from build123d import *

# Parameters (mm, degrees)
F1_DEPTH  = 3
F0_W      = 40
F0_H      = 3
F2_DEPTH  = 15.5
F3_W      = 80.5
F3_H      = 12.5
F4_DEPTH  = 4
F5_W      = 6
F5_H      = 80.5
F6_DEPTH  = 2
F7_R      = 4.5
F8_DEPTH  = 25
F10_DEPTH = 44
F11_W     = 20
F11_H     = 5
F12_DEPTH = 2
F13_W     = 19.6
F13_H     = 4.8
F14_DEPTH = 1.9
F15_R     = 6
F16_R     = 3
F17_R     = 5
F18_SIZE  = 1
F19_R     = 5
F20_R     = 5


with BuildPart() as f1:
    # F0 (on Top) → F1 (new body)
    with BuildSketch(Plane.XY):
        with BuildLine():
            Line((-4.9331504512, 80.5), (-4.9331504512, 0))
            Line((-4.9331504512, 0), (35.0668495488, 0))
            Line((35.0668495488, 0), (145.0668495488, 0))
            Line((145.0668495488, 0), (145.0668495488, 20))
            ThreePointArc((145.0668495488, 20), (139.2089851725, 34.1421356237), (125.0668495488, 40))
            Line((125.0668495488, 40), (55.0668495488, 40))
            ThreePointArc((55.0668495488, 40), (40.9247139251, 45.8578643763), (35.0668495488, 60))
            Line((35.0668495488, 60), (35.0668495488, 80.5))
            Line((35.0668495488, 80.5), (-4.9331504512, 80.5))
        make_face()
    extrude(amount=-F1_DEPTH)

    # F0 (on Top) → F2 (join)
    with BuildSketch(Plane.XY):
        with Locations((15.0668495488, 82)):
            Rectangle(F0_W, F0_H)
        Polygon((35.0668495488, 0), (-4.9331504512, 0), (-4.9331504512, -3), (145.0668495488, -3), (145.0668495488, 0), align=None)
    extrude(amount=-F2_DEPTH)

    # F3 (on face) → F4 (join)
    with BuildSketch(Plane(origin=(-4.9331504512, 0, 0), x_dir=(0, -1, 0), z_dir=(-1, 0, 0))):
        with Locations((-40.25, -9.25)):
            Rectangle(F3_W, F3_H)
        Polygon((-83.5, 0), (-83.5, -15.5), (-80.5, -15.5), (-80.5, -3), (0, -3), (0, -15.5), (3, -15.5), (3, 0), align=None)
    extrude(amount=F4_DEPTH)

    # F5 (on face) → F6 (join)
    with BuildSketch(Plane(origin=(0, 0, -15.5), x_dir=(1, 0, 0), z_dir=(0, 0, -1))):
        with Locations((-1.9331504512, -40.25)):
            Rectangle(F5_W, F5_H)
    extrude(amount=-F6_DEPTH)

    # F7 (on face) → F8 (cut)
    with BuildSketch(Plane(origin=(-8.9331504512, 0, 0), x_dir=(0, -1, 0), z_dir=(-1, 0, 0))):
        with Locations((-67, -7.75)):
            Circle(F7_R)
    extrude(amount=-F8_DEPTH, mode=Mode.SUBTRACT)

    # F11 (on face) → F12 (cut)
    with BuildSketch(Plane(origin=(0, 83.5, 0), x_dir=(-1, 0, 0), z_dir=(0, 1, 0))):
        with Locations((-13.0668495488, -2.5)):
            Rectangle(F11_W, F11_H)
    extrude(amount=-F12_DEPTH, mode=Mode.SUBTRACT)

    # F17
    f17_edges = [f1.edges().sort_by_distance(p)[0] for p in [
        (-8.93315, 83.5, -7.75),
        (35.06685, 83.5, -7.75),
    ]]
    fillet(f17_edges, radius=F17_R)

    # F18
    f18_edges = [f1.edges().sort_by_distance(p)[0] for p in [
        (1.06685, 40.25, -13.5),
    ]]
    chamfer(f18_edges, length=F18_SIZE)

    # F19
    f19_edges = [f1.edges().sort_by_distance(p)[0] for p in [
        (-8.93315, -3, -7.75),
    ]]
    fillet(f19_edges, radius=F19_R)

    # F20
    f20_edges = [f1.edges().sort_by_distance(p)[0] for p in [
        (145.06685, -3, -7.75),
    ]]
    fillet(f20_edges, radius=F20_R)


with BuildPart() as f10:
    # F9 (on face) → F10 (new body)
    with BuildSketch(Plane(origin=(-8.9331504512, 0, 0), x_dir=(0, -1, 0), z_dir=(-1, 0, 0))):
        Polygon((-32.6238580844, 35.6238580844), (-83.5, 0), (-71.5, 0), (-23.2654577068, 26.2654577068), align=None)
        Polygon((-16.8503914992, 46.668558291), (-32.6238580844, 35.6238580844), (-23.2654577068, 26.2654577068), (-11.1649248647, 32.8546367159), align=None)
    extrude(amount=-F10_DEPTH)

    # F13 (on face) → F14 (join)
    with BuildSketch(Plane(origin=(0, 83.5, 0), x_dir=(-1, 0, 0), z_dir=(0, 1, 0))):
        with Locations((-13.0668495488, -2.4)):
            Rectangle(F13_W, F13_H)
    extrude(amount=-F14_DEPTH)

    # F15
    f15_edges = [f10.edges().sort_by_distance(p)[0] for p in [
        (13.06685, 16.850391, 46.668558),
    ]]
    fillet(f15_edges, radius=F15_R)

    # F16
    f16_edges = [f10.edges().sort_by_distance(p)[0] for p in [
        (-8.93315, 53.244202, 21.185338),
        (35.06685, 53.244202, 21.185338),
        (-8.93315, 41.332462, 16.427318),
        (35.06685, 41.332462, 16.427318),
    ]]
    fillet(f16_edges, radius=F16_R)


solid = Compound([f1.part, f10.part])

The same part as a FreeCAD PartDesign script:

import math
import FreeCAD as App
import Part
import Sketcher
Q = App.Units.Quantity


def edges_at(feature, points):
    """Names of the edges that pass closest to the given points."""
    edges = feature.Shape.Edges
    near = lambda p: min(range(len(edges)), key=lambda i: edges[i].distToShape(Part.Vertex(*p))[0])
    return sorted({f"Edge{near(p) + 1}" for p in points})

doc = App.newDocument("Part")
body = doc.addObject("PartDesign::Body", "Body")

# Sketch on XY plane
sketch1 = body.newObject("Sketcher::SketchObject", "Sketch")
sketch1.AttachmentSupport = (doc.getObject("XY_Plane"), [""])
sketch1.MapMode = "FlatFace"
sketch1.addGeometry([
    Part.LineSegment(App.Vector(-5, 80, 0), App.Vector(-5, 0, 0)),  # 0
    Part.LineSegment(App.Vector(-5, 0, 0), App.Vector(145, 0, 0)),  # 1
    Part.LineSegment(App.Vector(145, 0, 0), App.Vector(145, 20, 0)),  # 2
    Part.ArcOfCircle(Part.Circle(App.Vector(125, 20, 0), App.Vector(0, 0, 1), 20), math.radians(0), math.radians(90)),  # 3
    Part.LineSegment(App.Vector(125, 40, 0), App.Vector(55, 40, 0)),  # 4
    Part.ArcOfCircle(Part.Circle(App.Vector(55, 60, 0), App.Vector(0, 0, 1), 20), math.radians(180), math.radians(270)),  # 5
    Part.LineSegment(App.Vector(35, 60, 0), App.Vector(35, 80, 0)),  # 6
    Part.LineSegment(App.Vector(35, 80, 0), App.Vector(-5, 80, 0)),  # 7
], False)
sketch1.addConstraint([
    Sketcher.Constraint("Coincident", 0, 2, 1, 1),
    Sketcher.Constraint("Coincident", 1, 2, 2, 1),
    Sketcher.Constraint("Tangent", 2, 2, 3, 1),
    Sketcher.Constraint("Tangent", 3, 2, 4, 1),
    Sketcher.Constraint("Tangent", 4, 2, 5, 2),
    Sketcher.Constraint("Tangent", 5, 1, 6, 1),
    Sketcher.Constraint("Coincident", 6, 2, 7, 1),
    Sketcher.Constraint("Coincident", 7, 2, 0, 1),
    Sketcher.Constraint("Vertical", 0),
    Sketcher.Constraint("Horizontal", 1),
    Sketcher.Constraint("Vertical", 2),
    Sketcher.Constraint("Horizontal", 4),
    Sketcher.Constraint("Vertical", 6),
    Sketcher.Constraint("Horizontal", 7),
    Sketcher.Constraint("Equal", 3, 5),
    Sketcher.Constraint("PointOnObject", 0, 2, -1),
    Sketcher.Constraint("Radius", 3, Q("20 mm")),
    Sketcher.Constraint("DistanceX", 1, 1, 1, 2, Q("150 mm")),
    Sketcher.Constraint("DistanceX", 4, 2, 4, 1, Q("70 mm")),
    Sketcher.Constraint("DistanceY", 2, 1, 2, 2, Q("20 mm")),
    Sketcher.Constraint("DistanceY", 0, 2, 0, 1, Q("80.5 mm")),
    Sketcher.Constraint("DistanceX", -1, 1, 3, 3, Q("125.06685 mm")),
])
pad1 = body.newObject("PartDesign::Pad", "Pad")
pad1.Profile = sketch1
pad1.Length = 3
pad1.Reversed = True

# Sketch on XY plane
sketch2 = body.newObject("Sketcher::SketchObject", "Sketch001")
sketch2.AttachmentSupport = (doc.getObject("XY_Plane"), [""])
sketch2.MapMode = "FlatFace"
sketch2.addGeometry([
    Part.LineSegment(App.Vector(-4.9, 83.5, 0), App.Vector(-4.9, 80.5, 0)),  # 0
    Part.LineSegment(App.Vector(-4.9, 80.5, 0), App.Vector(35.1, 80.5, 0)),  # 1
    Part.LineSegment(App.Vector(35.1, 80.5, 0), App.Vector(35.1, 83.5, 0)),  # 2
    Part.LineSegment(App.Vector(35.1, 83.5, 0), App.Vector(-4.9, 83.5, 0)),  # 3
    Part.LineSegment(App.Vector(-4.9, 0, 0), App.Vector(-4.9, -3, 0)),  # 4
    Part.LineSegment(App.Vector(-4.9, -3, 0), App.Vector(145.1, -3, 0)),  # 5
    Part.LineSegment(App.Vector(145.1, -3, 0), App.Vector(145.1, 0, 0)),  # 6
    Part.LineSegment(App.Vector(145.1, 0, 0), App.Vector(-4.9, 0, 0)),  # 7
], False)
sketch2.addConstraint([
    Sketcher.Constraint("Coincident", 0, 2, 1, 1),
    Sketcher.Constraint("Coincident", 1, 2, 2, 1),
    Sketcher.Constraint("Coincident", 2, 2, 3, 1),
    Sketcher.Constraint("Coincident", 3, 2, 0, 1),
    Sketcher.Constraint("Coincident", 4, 2, 5, 1),
    Sketcher.Constraint("Coincident", 5, 2, 6, 1),
    Sketcher.Constraint("Coincident", 6, 2, 7, 1),
    Sketcher.Constraint("Coincident", 7, 2, 4, 1),
    Sketcher.Constraint("Vertical", 0),
    Sketcher.Constraint("Horizontal", 1),
    Sketcher.Constraint("Vertical", 2),
    Sketcher.Constraint("Horizontal", 3),
    Sketcher.Constraint("Vertical", 4),
    Sketcher.Constraint("Horizontal", 5),
    Sketcher.Constraint("Vertical", 6),
    Sketcher.Constraint("Horizontal", 7),
    Sketcher.Constraint("PointOnObject", 6, 2, -1),
    Sketcher.Constraint("Vertical", 3, 2, 4, 2),
    Sketcher.Constraint("Equal", 2, 4),
    Sketcher.Constraint("DistanceX", 1, 1, 1, 2, Q("40 mm")),
    Sketcher.Constraint("DistanceX", 5, 1, 5, 2, Q("150 mm")),
    Sketcher.Constraint("DistanceY", 0, 2, 0, 1, Q("3 mm")),
    Sketcher.Constraint("DistanceY", -1, 1, 0, 2, Q("80.5 mm")),
    Sketcher.Constraint("DistanceX", 0, 2, -1, 1, Q("4.93315 mm")),
])
pad2 = body.newObject("PartDesign::Pad", "Pad001")
pad2.Profile = sketch2
pad2.Length = 15.5
pad2.Reversed = True

# Sketch on YZ plane
sketch3 = body.newObject("Sketcher::SketchObject", "Sketch002")
sketch3.AttachmentSupport = (doc.getObject("YZ_Plane"), [""])
sketch3.MapMode = "FlatFace"
sketch3.AttachmentOffset = App.Placement(App.Vector(0, 0, -4.93315), App.Rotation())
sketch3.addGeometry([
    Part.LineSegment(App.Vector(-3, -16, 0), App.Vector(-3, 0, 0)),
    Part.LineSegment(App.Vector(-3, 0, 0), App.Vector(84, 0, 0)),
    Part.LineSegment(App.Vector(84, 0, 0), App.Vector(84, -16, 0)),
    Part.LineSegment(App.Vector(84, -16, 0), App.Vector(-3, -16, 0)),
], False)
sketch3.addConstraint([
    Sketcher.Constraint("Coincident", 0, 2, 1, 1),
    Sketcher.Constraint("Coincident", 1, 2, 2, 1),
    Sketcher.Constraint("Coincident", 2, 2, 3, 1),
    Sketcher.Constraint("Coincident", 3, 2, 0, 1),
    Sketcher.Constraint("Vertical", 0),
    Sketcher.Constraint("Horizontal", 1),
    Sketcher.Constraint("Vertical", 2),
    Sketcher.Constraint("Horizontal", 3),
    Sketcher.Constraint("PointOnObject", 0, 2, -1),
    Sketcher.Constraint("DistanceX", 1, 1, 1, 2, Q("86.5 mm")),
    Sketcher.Constraint("DistanceY", 0, 1, 0, 2, Q("15.5 mm")),
    Sketcher.Constraint("DistanceX", 0, 2, -1, 1, Q("3 mm")),
])
pad3 = body.newObject("PartDesign::Pad", "Pad002")
pad3.Profile = sketch3
pad3.Length = 4
pad3.Reversed = True

# Sketch on XY plane
sketch4 = body.newObject("Sketcher::SketchObject", "Sketch003")
sketch4.AttachmentSupport = (doc.getObject("XY_Plane"), [""])
sketch4.MapMode = "FlatFace"
sketch4.AttachmentOffset = App.Placement(App.Vector(0, 0, -15.5), App.Rotation())
sketch4.addGeometry([
    Part.LineSegment(App.Vector(-5, 0, 0), App.Vector(-5, 80, 0)),
    Part.LineSegment(App.Vector(-5, 80, 0), App.Vector(1, 80, 0)),
    Part.LineSegment(App.Vector(1, 80, 0), App.Vector(1, 0, 0)),
    Part.LineSegment(App.Vector(1, 0, 0), App.Vector(-5, 0, 0)),
], False)
sketch4.addConstraint([
    Sketcher.Constraint("Coincident", 0, 2, 1, 1),
    Sketcher.Constraint("Coincident", 1, 2, 2, 1),
    Sketcher.Constraint("Coincident", 2, 2, 3, 1),
    Sketcher.Constraint("Coincident", 3, 2, 0, 1),
    Sketcher.Constraint("Vertical", 0),
    Sketcher.Constraint("Horizontal", 1),
    Sketcher.Constraint("Vertical", 2),
    Sketcher.Constraint("Horizontal", 3),
    Sketcher.Constraint("PointOnObject", 2, 2, -1),
    Sketcher.Constraint("DistanceX", 1, 1, 1, 2, Q("6 mm")),
    Sketcher.Constraint("DistanceY", 0, 1, 0, 2, Q("80.5 mm")),
    Sketcher.Constraint("DistanceX", 0, 2, -1, 1, Q("4.93315 mm")),
])
pad4 = body.newObject("PartDesign::Pad", "Pad003")
pad4.Profile = sketch4
pad4.Length = 2

# Sketch on YZ plane
sketch5 = body.newObject("Sketcher::SketchObject", "Sketch004")
sketch5.AttachmentSupport = (doc.getObject("YZ_Plane"), [""])
sketch5.MapMode = "FlatFace"
sketch5.AttachmentOffset = App.Placement(App.Vector(0, 0, -8.93315), App.Rotation())
sketch5.addGeometry(Part.Circle(App.Vector(67, -7.8, 0), App.Vector(0, 0, 1), 4.5), False)
sketch5.addConstraint([
    Sketcher.Constraint("Diameter", 0, Q("9 mm")),
    Sketcher.Constraint("DistanceX", -1, 1, 0, 3, Q("67 mm")),
    Sketcher.Constraint("DistanceY", 0, 3, -1, 1, Q("7.75 mm")),
])
pocket1 = body.newObject("PartDesign::Pocket", "Pocket")
pocket1.Profile = sketch5
pocket1.Length = 25
pocket1.Reversed = True

# Sketch on XZ plane
sketch6 = body.newObject("Sketcher::SketchObject", "Sketch005")
sketch6.AttachmentSupport = (doc.getObject("XZ_Plane"), [""])
sketch6.MapMode = "FlatFace"
sketch6.AttachmentOffset = App.Placement(App.Vector(0, 0, -83.5), App.Rotation())
sketch6.addGeometry([
    Part.LineSegment(App.Vector(23, 0, 0), App.Vector(23, -5, 0)),
    Part.LineSegment(App.Vector(23, -5, 0), App.Vector(3, -5, 0)),
    Part.LineSegment(App.Vector(3, -5, 0), App.Vector(3, 0, 0)),
    Part.LineSegment(App.Vector(3, 0, 0), App.Vector(23, 0, 0)),
], False)
sketch6.addConstraint([
    Sketcher.Constraint("Coincident", 0, 2, 1, 1),
    Sketcher.Constraint("Coincident", 1, 2, 2, 1),
    Sketcher.Constraint("Coincident", 2, 2, 3, 1),
    Sketcher.Constraint("Coincident", 3, 2, 0, 1),
    Sketcher.Constraint("Vertical", 0),
    Sketcher.Constraint("Horizontal", 1),
    Sketcher.Constraint("Vertical", 2),
    Sketcher.Constraint("Horizontal", 3),
    Sketcher.Constraint("PointOnObject", 2, 2, -1),
    Sketcher.Constraint("DistanceX", 1, 2, 1, 1, Q("20 mm")),
    Sketcher.Constraint("DistanceY", 0, 2, 0, 1, Q("5 mm")),
    Sketcher.Constraint("DistanceX", -1, 1, 0, 2, Q("23.06685 mm")),
])
pocket2 = body.newObject("PartDesign::Pocket", "Pocket001")
pocket2.Profile = sketch6
pocket2.Length = 2
pocket2.Reversed = True
doc.recompute()

fillet = body.newObject("PartDesign::Fillet", "Fillet")
fillet.Base = (pocket2, edges_at(pocket2, [(-8.933, 83.5, -7.75), (35.067, 83.5, -7.75)]))
fillet.Radius = 5
doc.recompute()

chamfer = body.newObject("PartDesign::Chamfer", "Chamfer")
chamfer.Base = (fillet, edges_at(fillet, [(1.067, 40.25, -13.5)]))
chamfer.Size = 1
doc.recompute()

fillet2 = body.newObject("PartDesign::Fillet", "Fillet001")
fillet2.Base = (chamfer, edges_at(chamfer, [(-8.933, -3, -7.75)]))
fillet2.Radius = 5
doc.recompute()

fillet3 = body.newObject("PartDesign::Fillet", "Fillet002")
fillet3.Base = (fillet2, edges_at(fillet2, [(145.067, -3, -7.75)]))
fillet3.Radius = 5
body2 = doc.addObject("PartDesign::Body", "Body001")

# Sketch on YZ plane
sketch7 = body2.newObject("Sketcher::SketchObject", "Sketch006")
sketch7.AttachmentSupport = (doc.getObject("YZ_Plane001"), [""])
sketch7.MapMode = "FlatFace"
sketch7.AttachmentOffset = App.Placement(App.Vector(0, 0, -8.93315), App.Rotation())
sketch7.addGeometry([
    Part.LineSegment(App.Vector(33, 36, 0), App.Vector(84, 0, 0)),  # 0
    Part.LineSegment(App.Vector(84, 0, 0), App.Vector(72, 0, 0)),  # 1
    Part.LineSegment(App.Vector(72, 0, 0), App.Vector(23, 26, 0)),  # 2
    Part.LineSegment(App.Vector(23, 26, 0), App.Vector(11, 33, 0)),  # 3
    Part.LineSegment(App.Vector(11, 33, 0), App.Vector(17, 47, 0)),  # 4
    Part.LineSegment(App.Vector(17, 47, 0), App.Vector(33, 36, 0)),  # 5
], False)
sketch7.addConstraint([
    Sketcher.Constraint("Coincident", 0, 2, 1, 1),
    Sketcher.Constraint("Coincident", 1, 2, 2, 1),
    Sketcher.Constraint("Coincident", 2, 2, 3, 1),
    Sketcher.Constraint("Coincident", 3, 2, 4, 1),
    Sketcher.Constraint("Coincident", 4, 2, 5, 1),
    Sketcher.Constraint("Coincident", 5, 2, 0, 1),
    Sketcher.Constraint("Horizontal", 1),
    Sketcher.Constraint("PointOnObject", 0, 2, -1),
    Sketcher.Constraint("Parallel", 2, 3),
    Sketcher.Constraint("Parallel", 0, 5),
    Sketcher.Constraint("DistanceX", 1, 2, 1, 1, Q("12 mm")),
    Sketcher.Constraint("Angle", 0, Q("-35 deg")),
    Sketcher.Constraint("DistanceX", -1, 1, 0, 2, Q("83.5 mm")),
    Sketcher.Constraint("Distance", 0, Q("62.108301 mm")),
    Sketcher.Constraint("DistanceY", 2, 2, 4, 2, Q("20.403101 mm")),
    Sketcher.Constraint("DistanceX", 2, 2, 5, 2, Q("9.3584 mm")),
    Sketcher.Constraint("DistanceY", 2, 2, 5, 2, Q("9.3584 mm")),
    Sketcher.Constraint("Distance", 3, Q("13.77825 mm")),
])
pad5 = body2.newObject("PartDesign::Pad", "Pad004")
pad5.Profile = sketch7
pad5.Length = 44

# Sketch on XZ plane
sketch8 = body2.newObject("Sketcher::SketchObject", "Sketch007")
sketch8.AttachmentSupport = (doc.getObject("XZ_Plane001"), [""])
sketch8.MapMode = "FlatFace"
sketch8.AttachmentOffset = App.Placement(App.Vector(0, 0, -83.5), App.Rotation())
sketch8.addGeometry([
    Part.LineSegment(App.Vector(22.9, 0, 0), App.Vector(22.9, -4.8, 0)),
    Part.LineSegment(App.Vector(22.9, -4.8, 0), App.Vector(3.3, -4.8, 0)),
    Part.LineSegment(App.Vector(3.3, -4.8, 0), App.Vector(3.3, 0, 0)),
    Part.LineSegment(App.Vector(3.3, 0, 0), App.Vector(22.9, 0, 0)),
], False)
sketch8.addConstraint([
    Sketcher.Constraint("Coincident", 0, 2, 1, 1),
    Sketcher.Constraint("Coincident", 1, 2, 2, 1),
    Sketcher.Constraint("Coincident", 2, 2, 3, 1),
    Sketcher.Constraint("Coincident", 3, 2, 0, 1),
    Sketcher.Constraint("Vertical", 0),
    Sketcher.Constraint("Horizontal", 1),
    Sketcher.Constraint("Vertical", 2),
    Sketcher.Constraint("Horizontal", 3),
    Sketcher.Constraint("PointOnObject", 2, 2, -1),
    Sketcher.Constraint("DistanceX", 1, 2, 1, 1, Q("19.6 mm")),
    Sketcher.Constraint("DistanceY", 0, 2, 0, 1, Q("4.8 mm")),
    Sketcher.Constraint("DistanceX", -1, 1, 0, 2, Q("22.86685 mm")),
])
pad6 = body2.newObject("PartDesign::Pad", "Pad005")
pad6.Profile = sketch8
pad6.Length = 1.9
doc.recompute()

fillet4 = body2.newObject("PartDesign::Fillet", "Fillet003")
fillet4.Base = (pad6, edges_at(pad6, [(13.067, 16.85, 46.669)]))
fillet4.Radius = 6
doc.recompute()

fillet5 = body2.newObject("PartDesign::Fillet", "Fillet004")
fillet5.Base = (fillet4, edges_at(fillet4, [
    (-8.933, 58.062, 17.812),
    (35.067, 58.062, 17.812),
    (-8.933, 47.383, 13.133),
    (35.067, 47.383, 13.133),
]))
fillet5.Radius = 3

doc.recompute()
